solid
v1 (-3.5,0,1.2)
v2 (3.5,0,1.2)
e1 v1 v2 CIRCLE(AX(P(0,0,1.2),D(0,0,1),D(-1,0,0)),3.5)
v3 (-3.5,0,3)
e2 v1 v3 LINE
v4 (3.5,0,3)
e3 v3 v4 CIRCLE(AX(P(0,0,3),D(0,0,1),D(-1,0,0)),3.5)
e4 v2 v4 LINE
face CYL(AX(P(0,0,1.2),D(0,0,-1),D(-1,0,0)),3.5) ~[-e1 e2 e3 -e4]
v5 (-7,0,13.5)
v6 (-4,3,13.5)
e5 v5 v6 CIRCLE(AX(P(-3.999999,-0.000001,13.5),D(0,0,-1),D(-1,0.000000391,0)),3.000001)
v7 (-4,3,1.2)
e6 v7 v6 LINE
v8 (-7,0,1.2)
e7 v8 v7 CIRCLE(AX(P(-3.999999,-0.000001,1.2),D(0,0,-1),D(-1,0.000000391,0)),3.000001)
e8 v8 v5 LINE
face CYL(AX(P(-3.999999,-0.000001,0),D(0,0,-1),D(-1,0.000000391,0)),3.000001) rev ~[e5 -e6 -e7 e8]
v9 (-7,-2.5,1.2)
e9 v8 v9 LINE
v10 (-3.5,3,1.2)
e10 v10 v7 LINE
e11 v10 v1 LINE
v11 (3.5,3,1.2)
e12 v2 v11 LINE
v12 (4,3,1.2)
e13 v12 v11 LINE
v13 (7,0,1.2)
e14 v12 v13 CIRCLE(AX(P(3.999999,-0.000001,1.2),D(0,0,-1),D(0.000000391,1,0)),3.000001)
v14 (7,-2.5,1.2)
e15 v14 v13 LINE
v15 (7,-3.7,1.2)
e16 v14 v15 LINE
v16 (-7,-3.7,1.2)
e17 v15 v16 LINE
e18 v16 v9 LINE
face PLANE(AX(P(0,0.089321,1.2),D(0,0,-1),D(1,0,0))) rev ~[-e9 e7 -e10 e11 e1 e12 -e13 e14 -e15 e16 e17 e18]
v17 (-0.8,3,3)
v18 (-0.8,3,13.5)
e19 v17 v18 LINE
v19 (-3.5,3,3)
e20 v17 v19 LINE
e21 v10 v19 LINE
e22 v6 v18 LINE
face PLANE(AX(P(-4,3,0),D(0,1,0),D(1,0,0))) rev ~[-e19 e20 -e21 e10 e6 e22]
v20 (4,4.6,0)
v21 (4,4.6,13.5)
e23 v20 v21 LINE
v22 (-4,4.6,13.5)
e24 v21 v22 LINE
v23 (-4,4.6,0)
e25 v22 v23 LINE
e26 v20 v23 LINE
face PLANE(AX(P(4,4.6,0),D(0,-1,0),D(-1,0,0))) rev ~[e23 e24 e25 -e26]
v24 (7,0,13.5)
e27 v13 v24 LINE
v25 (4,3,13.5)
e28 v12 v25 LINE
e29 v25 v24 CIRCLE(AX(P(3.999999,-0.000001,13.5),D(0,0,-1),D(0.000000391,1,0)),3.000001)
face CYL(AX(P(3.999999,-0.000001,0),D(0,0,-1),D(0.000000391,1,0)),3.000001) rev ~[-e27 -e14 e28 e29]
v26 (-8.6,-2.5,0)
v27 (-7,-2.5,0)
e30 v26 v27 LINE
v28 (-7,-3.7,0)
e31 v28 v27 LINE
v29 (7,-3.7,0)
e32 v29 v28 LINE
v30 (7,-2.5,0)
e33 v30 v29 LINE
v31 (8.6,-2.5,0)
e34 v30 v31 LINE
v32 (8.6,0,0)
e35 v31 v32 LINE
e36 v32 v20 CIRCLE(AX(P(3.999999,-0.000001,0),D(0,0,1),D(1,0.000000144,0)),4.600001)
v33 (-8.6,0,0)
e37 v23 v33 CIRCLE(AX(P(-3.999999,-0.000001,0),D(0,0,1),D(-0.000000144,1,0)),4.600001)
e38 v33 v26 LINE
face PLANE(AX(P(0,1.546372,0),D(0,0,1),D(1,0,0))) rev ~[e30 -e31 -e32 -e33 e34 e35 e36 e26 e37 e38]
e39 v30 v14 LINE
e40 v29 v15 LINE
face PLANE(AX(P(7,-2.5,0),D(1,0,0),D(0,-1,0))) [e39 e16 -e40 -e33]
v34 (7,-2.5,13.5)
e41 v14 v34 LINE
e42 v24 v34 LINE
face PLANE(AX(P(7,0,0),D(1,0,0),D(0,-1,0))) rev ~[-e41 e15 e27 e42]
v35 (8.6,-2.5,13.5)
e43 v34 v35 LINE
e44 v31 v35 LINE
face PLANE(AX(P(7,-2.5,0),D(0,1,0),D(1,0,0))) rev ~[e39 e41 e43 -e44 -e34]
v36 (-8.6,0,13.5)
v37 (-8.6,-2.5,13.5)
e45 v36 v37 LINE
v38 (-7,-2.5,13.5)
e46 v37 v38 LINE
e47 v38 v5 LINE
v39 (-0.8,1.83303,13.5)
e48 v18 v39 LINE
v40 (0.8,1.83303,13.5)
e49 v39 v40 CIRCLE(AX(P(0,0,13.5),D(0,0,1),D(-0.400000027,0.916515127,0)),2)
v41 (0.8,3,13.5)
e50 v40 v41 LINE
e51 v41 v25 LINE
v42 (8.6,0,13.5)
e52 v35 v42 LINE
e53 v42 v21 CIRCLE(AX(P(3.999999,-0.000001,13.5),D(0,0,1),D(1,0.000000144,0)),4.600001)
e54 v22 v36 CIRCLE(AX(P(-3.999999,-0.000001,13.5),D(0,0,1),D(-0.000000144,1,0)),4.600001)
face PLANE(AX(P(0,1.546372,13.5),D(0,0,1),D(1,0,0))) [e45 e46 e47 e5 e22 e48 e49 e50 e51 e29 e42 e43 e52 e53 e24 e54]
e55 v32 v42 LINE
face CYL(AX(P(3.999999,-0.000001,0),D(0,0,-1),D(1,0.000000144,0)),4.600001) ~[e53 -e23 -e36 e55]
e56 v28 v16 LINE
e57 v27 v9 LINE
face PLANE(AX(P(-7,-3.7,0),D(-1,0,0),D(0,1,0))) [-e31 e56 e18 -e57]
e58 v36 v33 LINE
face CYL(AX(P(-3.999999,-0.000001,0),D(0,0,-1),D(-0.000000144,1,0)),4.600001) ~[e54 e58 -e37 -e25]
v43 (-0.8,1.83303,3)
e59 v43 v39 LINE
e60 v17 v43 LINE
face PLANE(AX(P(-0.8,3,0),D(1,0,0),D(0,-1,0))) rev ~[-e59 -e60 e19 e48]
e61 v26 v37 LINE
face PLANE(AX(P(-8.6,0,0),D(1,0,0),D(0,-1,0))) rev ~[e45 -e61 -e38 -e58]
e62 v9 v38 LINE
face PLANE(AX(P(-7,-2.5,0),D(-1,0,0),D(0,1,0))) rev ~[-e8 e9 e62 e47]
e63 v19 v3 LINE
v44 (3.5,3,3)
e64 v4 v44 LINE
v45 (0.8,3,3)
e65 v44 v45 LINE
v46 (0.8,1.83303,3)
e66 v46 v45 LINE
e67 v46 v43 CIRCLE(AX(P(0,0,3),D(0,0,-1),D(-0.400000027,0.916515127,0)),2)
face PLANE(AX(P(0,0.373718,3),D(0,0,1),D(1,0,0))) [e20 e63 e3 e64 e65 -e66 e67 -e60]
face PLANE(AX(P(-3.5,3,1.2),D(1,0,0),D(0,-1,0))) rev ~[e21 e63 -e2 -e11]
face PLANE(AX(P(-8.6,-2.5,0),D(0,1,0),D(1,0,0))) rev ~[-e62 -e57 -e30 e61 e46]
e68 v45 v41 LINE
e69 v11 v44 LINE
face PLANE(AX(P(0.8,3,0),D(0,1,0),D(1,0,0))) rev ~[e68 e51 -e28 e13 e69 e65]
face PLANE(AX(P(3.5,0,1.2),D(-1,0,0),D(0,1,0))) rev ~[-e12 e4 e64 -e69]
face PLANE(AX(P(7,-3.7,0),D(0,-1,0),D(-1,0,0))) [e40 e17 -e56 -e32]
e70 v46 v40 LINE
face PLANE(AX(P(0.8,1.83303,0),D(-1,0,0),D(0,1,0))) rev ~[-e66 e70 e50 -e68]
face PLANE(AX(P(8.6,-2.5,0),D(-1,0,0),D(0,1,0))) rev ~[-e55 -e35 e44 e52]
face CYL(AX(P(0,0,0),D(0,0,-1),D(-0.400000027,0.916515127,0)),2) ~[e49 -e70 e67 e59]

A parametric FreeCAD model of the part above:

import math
import FreeCAD as App
import Part
import Sketcher
from FreeCAD import Vector
Q = App.Units.Quantity

doc = App.newDocument("Part")
params = doc.addObject("Spreadsheet::Sheet", "Params")
for row, (alias, value) in enumerate([
    ("sketch1_radius", "3.000001 mm"),
    ("sketch1_radius2", "2 mm"),
    ("sketch1_radius3", "4.600001 mm"),
    ("sketch1_width", "8 mm"),
    ("sketch1_width2", "3.2 mm"),
    ("pad1_length", "13.5 mm"),
    ("sketch2_radius", "4.600001 mm"),
    ("sketch2_width", "8 mm"),
    ("sketch2_width2", "14 mm"),
    ("sketch2_height", "2.5 mm"),
    ("sketch2_height2", "1.2 mm"),
    ("pad2_length", "1.2 mm"),
    ("sketch3_radius", "3.5 mm"),
    ("sketch3_height", "3 mm"),
    ("pad3_length", "1.8 mm"),
], start=1):
    params.set(f"A{row}", alias)
    params.set(f"B{row}", "=" + value)
    params.setAlias(f"B{row}", alias)

body = doc.addObject("PartDesign::Body", "Body")

# Sketch on XY plane
sketch1 = body.newObject("Sketcher::SketchObject", "Sketch")
sketch1.AttachmentSupport = (doc.getObject("XY_Plane"), [""])
sketch1.MapMode = "FlatFace"
sketch1.addGeometry(Part.LineSegment(Vector(-8.6, 0, 0), Vector(-8.6, -2.5, 0)), False)
sketch1.addGeometry(Part.LineSegment(Vector(-8.6, -2.5, 0), Vector(-7, -2.5, 0)), False)
sketch1.addGeometry(Part.LineSegment(Vector(-7, -2.5, 0), Vector(-7, 0, 0)), False)
sketch1.addGeometry(Part.ArcOfCircle(Part.Circle(Vector(-4, 0, 0), Vector(0, 0, 1), 3), math.radians(90), math.radians(180)), False)
sketch1.addGeometry(Part.LineSegment(Vector(-4, 3, 0), Vector(-0.8, 3, 0)), False)
sketch1.addGeometry(Part.LineSegment(Vector(-0.8, 3, 0), Vector(-0.8, 1.8, 0)), False)
sketch1.addGeometry(Part.ArcOfCircle(Part.Circle(Vector(0, 0, 0), Vector(0, 0, 1), 2), math.radians(114), math.radians(426)), False)
sketch1.addGeometry(Part.LineSegment(Vector(0.8, 1.8, 0), Vector(0.8, 3, 0)), False)
sketch1.addGeometry(Part.LineSegment(Vector(0.8, 3, 0), Vector(4, 3, 0)), False)
sketch1.addGeometry(Part.ArcOfCircle(Part.Circle(Vector(4, 0, 0), Vector(0, 0, 1), 3), math.radians(0), math.radians(90)), False)
sketch1.addGeometry(Part.LineSegment(Vector(7, 0, 0), Vector(7, -2.5, 0)), False)
sketch1.addGeometry(Part.LineSegment(Vector(7, -2.5, 0), Vector(8.6, -2.5, 0)), False)
sketch1.addGeometry(Part.LineSegment(Vector(8.6, -2.5, 0), Vector(8.6, 0, 0)), False)
sketch1.addGeometry(Part.ArcOfCircle(Part.Circle(Vector(4, 0, 0), Vector(0, 0, 1), 4.6), math.radians(0), math.radians(90)), False)
sketch1.addGeometry(Part.LineSegment(Vector(4, 4.6, 0), Vector(-4, 4.6, 0)), False)
sketch1.addGeometry(Part.ArcOfCircle(Part.Circle(Vector(-4, 0, 0), Vector(0, 0, 1), 4.6), math.radians(90), math.radians(180)), False)
sketch1.addConstraint(Sketcher.Constraint("Coincident", 0, 2, 1, 1))
sketch1.addConstraint(Sketcher.Constraint("Coincident", 1, 2, 2, 1))
sketch1.addConstraint(Sketcher.Constraint("Tangent", 2, 2, 3, 2))
sketch1.addConstraint(Sketcher.Constraint("Tangent", 3, 1, 4, 1))
sketch1.addConstraint(Sketcher.Constraint("Coincident", 4, 2, 5, 1))
sketch1.addConstraint(Sketcher.Constraint("Coincident", 5, 2, 6, 1))
sketch1.addConstraint(Sketcher.Constraint("Coincident", 6, 2, 7, 1))
sketch1.addConstraint(Sketcher.Constraint("Coincident", 7, 2, 8, 1))
sketch1.addConstraint(Sketcher.Constraint("Tangent", 8, 2, 9, 2))
sketch1.addConstraint(Sketcher.Constraint("Tangent", 9, 1, 10, 1))
sketch1.addConstraint(Sketcher.Constraint("Coincident", 10, 2, 11, 1))
sketch1.addConstraint(Sketcher.Constraint("Coincident", 11, 2, 12, 1))
sketch1.addConstraint(Sketcher.Constraint("Tangent", 12, 2, 13, 1))
sketch1.addConstraint(Sketcher.Constraint("Tangent", 13, 2, 14, 1))
sketch1.addConstraint(Sketcher.Constraint("Tangent", 14, 2, 15, 1))
sketch1.addConstraint(Sketcher.Constraint("Tangent", 15, 2, 0, 1))
sketch1.addConstraint(Sketcher.Constraint("Vertical", 0))
sketch1.addConstraint(Sketcher.Constraint("Horizontal", 1))
sketch1.addConstraint(Sketcher.Constraint("Vertical", 2))
sketch1.addConstraint(Sketcher.Constraint("Horizontal", 4))
sketch1.addConstraint(Sketcher.Constraint("Vertical", 5))
sketch1.addConstraint(Sketcher.Constraint("Vertical", 7))
sketch1.addConstraint(Sketcher.Constraint("Horizontal", 8))
sketch1.addConstraint(Sketcher.Constraint("Vertical", 10))
sketch1.addConstraint(Sketcher.Constraint("Horizontal", 11))
sketch1.addConstraint(Sketcher.Constraint("Vertical", 12))
sketch1.addConstraint(Sketcher.Constraint("Horizontal", 14))
sketch1.addConstraint(Sketcher.Constraint("Coincident", 6, 3, -1, 1))
sketch1.addConstraint(Sketcher.Constraint("Coincident", 13, 3, 9, 3))
sketch1.addConstraint(Sketcher.Constraint("Coincident", 15, 3, 3, 3))
sketch1.addConstraint(Sketcher.Constraint("Equal", 3, 9))
sketch1.addConstraint(Sketcher.Constraint("Equal", 13, 15))
sketch1.addConstraint(Sketcher.Constraint("Symmetric", 3, 3, 9, 3, -1, 1))
sketch1.addConstraint(Sketcher.Constraint("Horizontal", 5, 2, 6, 2))
sketch1.addConstraint(Sketcher.Constraint("Horizontal", 1, 2, 10, 2))
sketch1.addConstraint(Sketcher.Constraint("Radius", 3, Q("3.000001 mm")))
sketch1.addConstraint(Sketcher.Constraint("Radius", 6, Q("2 mm")))
sketch1.addConstraint(Sketcher.Constraint("Radius", 13, Q("4.600001 mm")))
sketch1.addConstraint(Sketcher.Constraint("DistanceX", 14, 2, 14, 1, Q("8 mm")))
sketch1.addConstraint(Sketcher.Constraint("DistanceX", 4, 1, 4, 2, Q("3.2 mm")))
sketch1.addConstraint(Sketcher.Constraint("DistanceY", 0, 2, 0, 1, Q("2.5 mm")))
sketch1.setExpression("Constraints[35]", "Params.sketch1_radius")
sketch1.setExpression("Constraints[36]", "Params.sketch1_radius2")
sketch1.setExpression("Constraints[37]", "Params.sketch1_radius3")
sketch1.setExpression("Constraints[38]", "Params.sketch1_width")
sketch1.setExpression("Constraints[39]", "Params.sketch1_width2")
pad1 = body.newObject("PartDesign::Pad", "Pad")
pad1.Profile = sketch1
pad1.setExpression("Length", "Params.pad1_length")

# Sketch on XY plane
sketch2 = body.newObject("Sketcher::SketchObject", "Sketch001")
sketch2.AttachmentSupport = (doc.getObject("XY_Plane"), [""])
sketch2.MapMode = "FlatFace"
sketch2.addGeometry(Part.LineSegment(Vector(-7, -2.5, 0), Vector(-8.6, -2.5, 0)), False)
sketch2.addGeometry(Part.LineSegment(Vector(-8.6, -2.5, 0), Vector(-8.6, 0, 0)), False)
sketch2.addGeometry(Part.ArcOfCircle(Part.Circle(Vector(-4, 0, 0), Vector(0, 0, 1), 4.6), math.radians(90), math.radians(180)), False)
sketch2.addGeometry(Part.LineSegment(Vector(-4, 4.6, 0), Vector(4, 4.6, 0)), False)
sketch2.addGeometry(Part.ArcOfCircle(Part.Circle(Vector(4, 0, 0), Vector(0, 0, 1), 4.6), math.radians(0), math.radians(90)), False)
sketch2.addGeometry(Part.LineSegment(Vector(8.6, 0, 0), Vector(8.6, -2.5, 0)), False)
sketch2.addGeometry(Part.LineSegment(Vector(8.6, -2.5, 0), Vector(7, -2.5, 0)), False)
sketch2.addGeometry(Part.LineSegment(Vector(7, -2.5, 0), Vector(7, -3.7, 0)), False)
sketch2.addGeometry(Part.LineSegment(Vector(7, -3.7, 0), Vector(-7, -3.7, 0)), False)
sketch2.addGeometry(Part.LineSegment(Vector(-7, -3.7, 0), Vector(-7, -2.5, 0)), False)
sketch2.addConstraint(Sketcher.Constraint("Coincident", 0, 2, 1, 1))
sketch2.addConstraint(Sketcher.Constraint("Tangent", 1, 2, 2, 2))
sketch2.addConstraint(Sketcher.Constraint("Tangent", 2, 1, 3, 1))
sketch2.addConstraint(Sketcher.Constraint("Tangent", 3, 2, 4, 2))
sketch2.addConstraint(Sketcher.Constraint("Tangent", 4, 1, 5, 1))
sketch2.addConstraint(Sketcher.Constraint("Coincident", 5, 2, 6, 1))
sketch2.addConstraint(Sketcher.Constraint("Coincident", 6, 2, 7, 1))
sketch2.addConstraint(Sketcher.Constraint("Coincident", 7, 2, 8, 1))
sketch2.addConstraint(Sketcher.Constraint("Coincident", 8, 2, 9, 1))
sketch2.addConstraint(Sketcher.Constraint("Coincident", 9, 2, 0, 1))
sketch2.addConstraint(Sketcher.Constraint("Horizontal", 0))
sketch2.addConstraint(Sketcher.Constraint("Vertical", 1))
sketch2.addConstraint(Sketcher.Constraint("Horizontal", 3))
sketch2.addConstraint(Sketcher.Constraint("Vertical", 5))
sketch2.addConstraint(Sketcher.Constraint("Horizontal", 6))
sketch2.addConstraint(Sketcher.Constraint("Vertical", 7))
sketch2.addConstraint(Sketcher.Constraint("Horizontal", 8))
sketch2.addConstraint(Sketcher.Constraint("Vertical", 9))
sketch2.addConstraint(Sketcher.Constraint("Equal", 2, 4))
sketch2.addConstraint(Sketcher.Constraint("Symmetric", 2, 3, 4, 3, -1, 1))
sketch2.addConstraint(Sketcher.Constraint("Symmetric", 6, 2, 9, 2, -2))
sketch2.addConstraint(Sketcher.Constraint("Radius", 2, Q("4.600001 mm")))
sketch2.addConstraint(Sketcher.Constraint("DistanceX", 3, 1, 3, 2, Q("8 mm")))
sketch2.addConstraint(Sketcher.Constraint("DistanceX", 8, 2, 8, 1, Q("14 mm")))
sketch2.addConstraint(Sketcher.Constraint("DistanceY", 1, 1, 1, 2, Q("2.5 mm")))
sketch2.addConstraint(Sketcher.Constraint("DistanceY", 7, 2, 7, 1, Q("1.2 mm")))
sketch2.setExpression("Constraints[21]", "Params.sketch2_radius")
sketch2.setExpression("Constraints[22]", "Params.sketch2_width")
sketch2.setExpression("Constraints[23]", "Params.sketch2_width2")
sketch2.setExpression("Constraints[24]", "Params.sketch2_height")
sketch2.setExpression("Constraints[25]", "Params.sketch2_height2")
pad2 = body.newObject("PartDesign::Pad", "Pad001")
pad2.Profile = sketch2
pad2.setExpression("Length", "Params.pad2_length")

# Sketch on XY plane
sketch3 = body.newObject("Sketcher::SketchObject", "Sketch002")
sketch3.AttachmentSupport = (doc.getObject("XY_Plane"), [""])
sketch3.MapMode = "FlatFace"
sketch3.AttachmentOffset = App.Placement(Vector(0, 0, 1.2), App.Rotation())
sketch3.addGeometry(Part.LineSegment(Vector(-3.5, 3, 0), Vector(-3.5, 0, 0)), False)
sketch3.addGeometry(Part.ArcOfCircle(Part.Circle(Vector(0, 0, 0), Vector(0, 0, 1), 3.5), math.radians(180), math.radians(360)), False)
sketch3.addGeometry(Part.LineSegment(Vector(3.5, 0, 0), Vector(3.5, 3, 0)), False)
sketch3.addGeometry(Part.LineSegment(Vector(3.5, 3, 0), Vector(-3.5, 3, 0)), False)
sketch3.addConstraint(Sketcher.Constraint("Tangent", 0, 2, 1, 1))
sketch3.addConstraint(Sketcher.Constraint("Tangent", 1, 2, 2, 1))
sketch3.addConstraint(Sketcher.Constraint("Coincident", 2, 2, 3, 1))
sketch3.addConstraint(Sketcher.Constraint("Coincident", 3, 2, 0, 1))
sketch3.addConstraint(Sketcher.Constraint("Vertical", 0))
sketch3.addConstraint(Sketcher.Constraint("Vertical", 2))
sketch3.addConstraint(Sketcher.Constraint("Horizontal", 3))
sketch3.addConstraint(Sketcher.Constraint("Coincident", 1, 3, -1, 1))
sketch3.addConstraint(Sketcher.Constraint("Radius", 1, Q("3.5 mm")))
sketch3.addConstraint(Sketcher.Constraint("DistanceY", 0, 2, 0, 1, Q("3 mm")))
sketch3.setExpression("Constraints[8]", "Params.sketch3_radius")
sketch3.setExpression("Constraints[9]", "Params.sketch3_height")
pad3 = body.newObject("PartDesign::Pad", "Pad002")
pad3.Profile = sketch3
pad3.setExpression("Length", "Params.pad3_length")

doc.recompute()
